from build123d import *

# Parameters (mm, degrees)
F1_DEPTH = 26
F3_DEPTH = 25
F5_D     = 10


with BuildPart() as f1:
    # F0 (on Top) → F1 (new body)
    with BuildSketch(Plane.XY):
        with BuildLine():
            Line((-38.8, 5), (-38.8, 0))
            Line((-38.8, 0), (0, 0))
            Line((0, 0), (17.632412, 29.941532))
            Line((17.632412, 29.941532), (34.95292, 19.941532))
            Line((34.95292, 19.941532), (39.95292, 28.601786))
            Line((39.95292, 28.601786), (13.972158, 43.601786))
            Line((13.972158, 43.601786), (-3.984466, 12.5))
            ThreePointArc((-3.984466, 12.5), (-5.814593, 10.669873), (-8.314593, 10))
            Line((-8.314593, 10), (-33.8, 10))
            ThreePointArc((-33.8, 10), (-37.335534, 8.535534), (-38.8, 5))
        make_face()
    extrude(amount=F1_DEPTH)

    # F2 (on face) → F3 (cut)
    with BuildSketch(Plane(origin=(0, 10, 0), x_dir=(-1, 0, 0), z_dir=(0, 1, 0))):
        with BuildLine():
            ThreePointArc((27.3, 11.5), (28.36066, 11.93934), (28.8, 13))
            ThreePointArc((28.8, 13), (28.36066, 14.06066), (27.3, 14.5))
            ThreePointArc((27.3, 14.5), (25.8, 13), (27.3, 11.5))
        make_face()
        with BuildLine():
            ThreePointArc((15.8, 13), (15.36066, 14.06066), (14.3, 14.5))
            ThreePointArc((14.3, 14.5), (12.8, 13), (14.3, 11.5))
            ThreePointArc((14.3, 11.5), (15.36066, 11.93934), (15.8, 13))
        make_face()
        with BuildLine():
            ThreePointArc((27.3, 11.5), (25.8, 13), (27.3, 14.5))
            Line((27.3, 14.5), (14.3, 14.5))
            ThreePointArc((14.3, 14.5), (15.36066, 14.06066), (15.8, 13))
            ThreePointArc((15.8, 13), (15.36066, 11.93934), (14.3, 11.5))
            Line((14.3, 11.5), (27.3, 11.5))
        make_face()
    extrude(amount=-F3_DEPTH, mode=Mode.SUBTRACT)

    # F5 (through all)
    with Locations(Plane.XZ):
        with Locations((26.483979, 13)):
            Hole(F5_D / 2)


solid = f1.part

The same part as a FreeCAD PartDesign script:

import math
import FreeCAD as App
import Part
import Sketcher
from FreeCAD import Vector
Q = App.Units.Quantity

doc = App.newDocument("Part")
body = doc.addObject("PartDesign::Body", "Body")

# Sketch on XY plane
sketch1 = body.newObject("Sketcher::SketchObject", "Sketch")
sketch1.AttachmentSupport = (doc.getObject("XY_Plane"), [""])
sketch1.MapMode = "FlatFace"
sketch1.addGeometry([
    Part.LineSegment(Vector(-38.8, 5, 0), Vector(-38.8, 0, 0)),  # 0
    Part.LineSegment(Vector(-38.8, 0, 0), Vector(0, 0, 0)),  # 1
    Part.LineSegment(Vector(0, 0, 0), Vector(17.632412, 29.941532, 0)),  # 2
    Part.LineSegment(Vector(17.632412, 29.941532, 0), Vector(34.95292, 19.941532, 0)),  # 3
    Part.LineSegment(Vector(34.95292, 19.941532, 0), Vector(39.95292, 28.601786, 0)),  # 4
    Part.LineSegment(Vector(39.95292, 28.601786, 0), Vector(13.972158, 43.601786, 0)),  # 5
    Part.LineSegment(Vector(13.972158, 43.601786, 0), Vector(-3.984466, 12.5, 0)),  # 6
    Part.ArcOfCircle(Part.Circle(Vector(-8.314593, 15, 0), Vector(0, 0, 1), 5), math.radians(-89.999999), math.radians(-30)),  # 7
    Part.LineSegment(Vector(-8.314593, 10, 0), Vector(-33.8, 10, 0)),  # 8
    Part.ArcOfCircle(Part.Circle(Vector(-33.8, 5, 0), Vector(0, 0, 1), 5), math.radians(89.999996), math.radians(180.000004)),  # 9
], False)
sketch1.addConstraint([
    Sketcher.Constraint("Coincident", 0, 2, 1, 1),
    Sketcher.Constraint("Coincident", 1, 2, 2, 1),
    Sketcher.Constraint("Coincident", 2, 2, 3, 1),
    Sketcher.Constraint("Coincident", 3, 2, 4, 1),
    Sketcher.Constraint("Coincident", 4, 2, 5, 1),
    Sketcher.Constraint("Coincident", 5, 2, 6, 1),
    Sketcher.Constraint("Tangent", 6, 2, 7, 2),
    Sketcher.Constraint("Tangent", 7, 1, 8, 1),
    Sketcher.Constraint("Tangent", 8, 2, 9, 1),
    Sketcher.Constraint("Tangent", 9, 2, 0, 1),
    Sketcher.Constraint("Vertical", 0),
    Sketcher.Constraint("Horizontal", 1),
    Sketcher.Constraint("Horizontal", 8),
    Sketcher.Constraint("Coincident", 1, 2, -1, 1),
    Sketcher.Constraint("Equal", 7, 9),
    Sketcher.Constraint("Perpendicular", 3, 4),
    Sketcher.Constraint("Perpendicular", 4, 5),
    Sketcher.Constraint("Perpendicular", 5, 6),
    Sketcher.Constraint("Radius", 7, Q("5 mm")),
    Sketcher.Constraint("DistanceY", 0, 2, 0, 1, Q("5 mm")),
    Sketcher.Constraint("Angle", 3, Q("-30 deg")),
    Sketcher.Constraint("Distance", 3, Q("20 mm")),
    Sketcher.Constraint("Distance", 4, Q("10 mm")),
    Sketcher.Constraint("Distance", 5, Q("30 mm")),
    Sketcher.Constraint("DistanceX", 1, 1, 1, 2, Q("38.8 mm")),
    Sketcher.Constraint("Distance", 6, Q("35.913249 mm")),
    Sketcher.Constraint("DistanceX", 8, 2, 8, 1, Q("25.485407 mm")),
])
pad1 = body.newObject("PartDesign::Pad", "Pad")
pad1.Profile = sketch1
pad1.Length = 26

# Sketch on XZ plane
sketch2 = body.newObject("Sketcher::SketchObject", "Sketch001")
sketch2.AttachmentSupport = (doc.getObject("XZ_Plane"), [""])
sketch2.MapMode = "FlatFace"
sketch2.AttachmentOffset = App.Placement(Vector(0, 0, -10), App.Rotation())
sketch2.addGeometry([
    Part.ArcOfCircle(Part.Circle(Vector(-27.299999, 13.000001, 0), Vector(0, 0, 1), 1.500001), math.radians(-179.999978), math.radians(-90.000022)),  # 0
    Part.ArcOfCircle(Part.Circle(Vector(-27.299999, 12.999999, 0), Vector(0, 0, 1), 1.500001), math.radians(90.000022), math.radians(179.999978)),  # 1
    Part.LineSegment(Vector(-27.3, 14.5, 0), Vector(-14.3, 14.5, 0)),  # 2
    Part.ArcOfCircle(Part.Circle(Vector(-14.3, 13, 0), Vector(0, 0, 1), 1.5), math.radians(-90), math.radians(90)),  # 3
    Part.LineSegment(Vector(-14.3, 11.5, 0), Vector(-27.3, 11.5, 0)),  # 4
], False)
sketch2.addConstraint([
    Sketcher.Constraint("Tangent", 0, 1, 1, 2),
    Sketcher.Constraint("Tangent", 1, 1, 2, 1),
    Sketcher.Constraint("Tangent", 2, 2, 3, 2),
    Sketcher.Constraint("Tangent", 3, 1, 4, 1),
    Sketcher.Constraint("Tangent", 4, 2, 0, 2),
    Sketcher.Constraint("Horizontal", 2),
    Sketcher.Constraint("Horizontal", 4),
    Sketcher.Constraint("Equal", 0, 1),
    Sketcher.Constraint("Horizontal", 3, 3, 0, 1),
    Sketcher.Constraint("Radius", 0, Q("1.500001 mm")),
    Sketcher.Constraint("DistanceX", 2, 1, 2, 2, Q("13 mm")),
    Sketcher.Constraint("DistanceY", -1, 1, 0, 3, Q("13.000001 mm")),
    Sketcher.Constraint("DistanceX", 0, 3, -1, 1, Q("27.299999 mm")),
])
pocket1 = body.newObject("PartDesign::Pocket", "Pocket")
pocket1.Profile = sketch2
pocket1.Length = 25
pocket1.Reversed = True

# Sketch on XZ plane
sketch3 = body.newObject("Sketcher::SketchObject", "Sketch002")
sketch3.AttachmentSupport = (doc.getObject("XZ_Plane"), [""])
sketch3.MapMode = "FlatFace"
sketch3.addGeometry(Part.Circle(Vector(26.483979, 13, 0), Vector(0, 0, 1), 5), False)
sketch3.addConstraint([
    Sketcher.Constraint("Diameter", 0, Q("10 mm")),
    Sketcher.Constraint("DistanceY", -1, 1, 0, 3, Q("13 mm")),
    Sketcher.Constraint("DistanceX", -1, 1, 0, 3, Q("26.483979 mm")),
])
doc.recompute()
hole = body.newObject("PartDesign::Hole", "Hole")
hole.Profile = sketch3
hole.ThreadType = "None"
hole.Diameter = 10
hole.DepthType = "ThroughAll"

doc.recompute()
